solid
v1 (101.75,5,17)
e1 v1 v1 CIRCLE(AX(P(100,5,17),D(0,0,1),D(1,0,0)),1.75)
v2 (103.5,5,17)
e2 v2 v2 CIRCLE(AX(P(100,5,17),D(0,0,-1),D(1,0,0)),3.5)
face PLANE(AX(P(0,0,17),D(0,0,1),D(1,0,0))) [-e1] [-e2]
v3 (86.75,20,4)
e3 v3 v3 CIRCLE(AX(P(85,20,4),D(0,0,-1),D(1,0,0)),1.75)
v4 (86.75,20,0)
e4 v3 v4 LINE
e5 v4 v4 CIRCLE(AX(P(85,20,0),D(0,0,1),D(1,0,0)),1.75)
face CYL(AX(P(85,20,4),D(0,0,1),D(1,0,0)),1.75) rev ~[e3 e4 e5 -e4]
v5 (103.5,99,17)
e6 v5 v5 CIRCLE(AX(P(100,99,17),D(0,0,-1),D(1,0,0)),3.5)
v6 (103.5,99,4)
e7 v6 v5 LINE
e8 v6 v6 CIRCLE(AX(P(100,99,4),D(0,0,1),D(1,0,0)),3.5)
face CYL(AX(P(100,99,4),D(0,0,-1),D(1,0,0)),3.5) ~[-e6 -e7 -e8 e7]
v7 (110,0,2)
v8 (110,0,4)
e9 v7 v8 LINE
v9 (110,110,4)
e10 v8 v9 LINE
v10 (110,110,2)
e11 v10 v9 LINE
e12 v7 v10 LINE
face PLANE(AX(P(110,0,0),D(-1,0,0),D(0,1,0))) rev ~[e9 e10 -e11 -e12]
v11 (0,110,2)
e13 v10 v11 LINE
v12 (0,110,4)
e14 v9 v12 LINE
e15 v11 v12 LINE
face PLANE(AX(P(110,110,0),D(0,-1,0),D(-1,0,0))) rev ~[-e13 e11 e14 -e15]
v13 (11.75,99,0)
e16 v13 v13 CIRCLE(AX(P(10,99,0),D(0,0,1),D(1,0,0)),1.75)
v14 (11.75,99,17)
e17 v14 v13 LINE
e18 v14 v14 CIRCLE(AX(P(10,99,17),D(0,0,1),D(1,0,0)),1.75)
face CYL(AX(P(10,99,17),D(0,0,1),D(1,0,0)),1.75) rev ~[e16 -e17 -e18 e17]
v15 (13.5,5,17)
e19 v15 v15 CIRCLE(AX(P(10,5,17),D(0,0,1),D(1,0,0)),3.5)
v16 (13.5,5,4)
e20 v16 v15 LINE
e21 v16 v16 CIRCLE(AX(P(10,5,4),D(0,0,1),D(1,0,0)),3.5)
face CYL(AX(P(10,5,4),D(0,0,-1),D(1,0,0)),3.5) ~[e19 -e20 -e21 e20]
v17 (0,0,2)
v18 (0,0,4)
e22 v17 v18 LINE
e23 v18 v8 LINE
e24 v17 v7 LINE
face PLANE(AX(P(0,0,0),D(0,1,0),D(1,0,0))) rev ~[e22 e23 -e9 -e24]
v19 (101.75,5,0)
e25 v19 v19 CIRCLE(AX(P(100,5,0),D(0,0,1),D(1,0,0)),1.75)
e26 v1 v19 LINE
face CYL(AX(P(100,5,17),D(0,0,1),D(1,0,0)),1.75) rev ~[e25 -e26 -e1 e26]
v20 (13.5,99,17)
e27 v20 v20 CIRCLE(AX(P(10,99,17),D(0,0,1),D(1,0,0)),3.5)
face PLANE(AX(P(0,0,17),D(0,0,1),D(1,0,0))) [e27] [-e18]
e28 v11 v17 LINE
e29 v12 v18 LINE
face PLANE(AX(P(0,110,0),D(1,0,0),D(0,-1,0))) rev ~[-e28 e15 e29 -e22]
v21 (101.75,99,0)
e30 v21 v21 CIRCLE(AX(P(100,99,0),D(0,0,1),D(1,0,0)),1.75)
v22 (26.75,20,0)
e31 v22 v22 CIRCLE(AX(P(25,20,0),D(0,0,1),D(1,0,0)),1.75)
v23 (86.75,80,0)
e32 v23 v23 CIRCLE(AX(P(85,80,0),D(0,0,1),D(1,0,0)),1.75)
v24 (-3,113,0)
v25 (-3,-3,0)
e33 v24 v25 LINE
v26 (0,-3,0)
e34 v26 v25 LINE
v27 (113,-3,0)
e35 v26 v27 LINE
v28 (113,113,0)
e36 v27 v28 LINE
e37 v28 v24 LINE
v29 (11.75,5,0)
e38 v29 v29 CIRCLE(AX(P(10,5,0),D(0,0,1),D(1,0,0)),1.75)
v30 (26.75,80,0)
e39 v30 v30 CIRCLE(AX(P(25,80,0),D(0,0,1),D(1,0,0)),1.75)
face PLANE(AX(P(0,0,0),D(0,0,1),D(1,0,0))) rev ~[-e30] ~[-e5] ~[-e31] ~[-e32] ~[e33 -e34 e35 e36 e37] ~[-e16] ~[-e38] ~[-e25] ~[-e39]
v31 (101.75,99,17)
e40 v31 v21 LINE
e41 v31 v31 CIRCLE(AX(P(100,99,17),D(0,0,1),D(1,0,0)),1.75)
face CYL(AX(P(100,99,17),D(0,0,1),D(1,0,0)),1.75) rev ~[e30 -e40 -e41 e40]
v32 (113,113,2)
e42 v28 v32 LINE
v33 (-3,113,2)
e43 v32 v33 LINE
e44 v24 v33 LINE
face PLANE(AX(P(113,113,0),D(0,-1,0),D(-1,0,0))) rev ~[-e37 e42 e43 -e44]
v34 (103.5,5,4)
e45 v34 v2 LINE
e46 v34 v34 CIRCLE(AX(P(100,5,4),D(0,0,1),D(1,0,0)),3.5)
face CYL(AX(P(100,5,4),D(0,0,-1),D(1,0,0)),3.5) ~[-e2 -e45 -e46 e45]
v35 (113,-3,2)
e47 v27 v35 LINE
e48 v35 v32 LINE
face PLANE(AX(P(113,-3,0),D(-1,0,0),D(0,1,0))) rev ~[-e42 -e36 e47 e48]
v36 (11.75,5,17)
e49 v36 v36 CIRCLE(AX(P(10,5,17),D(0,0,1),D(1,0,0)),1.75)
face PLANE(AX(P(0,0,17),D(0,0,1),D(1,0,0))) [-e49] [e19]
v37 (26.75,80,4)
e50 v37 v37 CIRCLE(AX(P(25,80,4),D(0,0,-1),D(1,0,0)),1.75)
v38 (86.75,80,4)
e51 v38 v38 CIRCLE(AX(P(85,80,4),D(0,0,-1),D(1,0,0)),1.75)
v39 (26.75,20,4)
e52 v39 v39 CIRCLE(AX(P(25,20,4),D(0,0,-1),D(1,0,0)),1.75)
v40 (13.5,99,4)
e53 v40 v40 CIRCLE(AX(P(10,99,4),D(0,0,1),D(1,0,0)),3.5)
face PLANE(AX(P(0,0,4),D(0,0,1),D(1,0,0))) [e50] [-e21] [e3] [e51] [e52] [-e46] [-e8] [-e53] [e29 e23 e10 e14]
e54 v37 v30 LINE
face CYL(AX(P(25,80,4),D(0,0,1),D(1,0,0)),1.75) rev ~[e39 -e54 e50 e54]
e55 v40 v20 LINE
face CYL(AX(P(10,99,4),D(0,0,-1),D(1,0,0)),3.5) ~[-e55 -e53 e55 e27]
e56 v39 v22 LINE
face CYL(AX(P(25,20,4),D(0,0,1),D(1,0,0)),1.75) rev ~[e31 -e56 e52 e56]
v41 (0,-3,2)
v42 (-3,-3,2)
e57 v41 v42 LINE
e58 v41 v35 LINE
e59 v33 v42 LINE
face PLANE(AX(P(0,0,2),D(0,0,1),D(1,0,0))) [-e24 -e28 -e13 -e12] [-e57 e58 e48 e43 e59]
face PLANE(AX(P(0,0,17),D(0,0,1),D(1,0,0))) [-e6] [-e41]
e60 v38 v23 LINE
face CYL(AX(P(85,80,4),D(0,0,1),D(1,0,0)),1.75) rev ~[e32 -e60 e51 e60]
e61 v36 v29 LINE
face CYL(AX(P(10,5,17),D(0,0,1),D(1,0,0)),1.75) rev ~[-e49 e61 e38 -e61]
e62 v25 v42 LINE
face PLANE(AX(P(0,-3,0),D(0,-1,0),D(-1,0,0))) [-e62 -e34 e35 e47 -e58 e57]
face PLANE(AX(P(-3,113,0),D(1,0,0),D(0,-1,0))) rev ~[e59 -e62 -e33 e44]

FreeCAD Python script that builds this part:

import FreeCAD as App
import Part
import Sketcher

doc = App.newDocument("Part")
params = doc.addObject("Spreadsheet::Sheet", "Params")
for row, (alias, value) in enumerate([
    ("sketch1_width", "110 mm"),
    ("pad1_length", "4 mm"),
    ("sketch2_width", "3 mm"),
    ("sketch2_width2", "116 mm"),
    ("sketch2_width3", "110 mm"),
    ("pad2_length", "2 mm"),
    ("sketch3_diameter", "7 mm"),
    ("pad3_length", "13 mm"),
    ("sketch4_diameter", "3.5 mm"),
    ("sketch5_diameter", "3.5 mm"),
    ("pocket2_length", "15 mm"),
], start=1):
    params.set(f"A{row}", alias)
    params.set(f"B{row}", "=" + value)
    params.setAlias(f"B{row}", alias)

body = doc.addObject("PartDesign::Body", "Body")

# Sketch on XY plane
sketch1 = body.newObject("Sketcher::SketchObject", "Sketch")
sketch1.AttachmentSupport = (doc.getObject("XY_Plane"), [""])
sketch1.MapMode = "FlatFace"
sketch1.addGeometry(Part.LineSegment(App.Vector(0, 110, 0), App.Vector(0, 0, 0)), False)
sketch1.addGeometry(Part.LineSegment(App.Vector(0, 0, 0), App.Vector(110, 0, 0)), False)
sketch1.addGeometry(Part.LineSegment(App.Vector(110, 0, 0), App.Vector(110, 110, 0)), False)
sketch1.addGeometry(Part.LineSegment(App.Vector(110, 110, 0), App.Vector(0, 110, 0)), False)
sketch1.addConstraint(Sketcher.Constraint("Coincident", 0, 2, 1, 1))
sketch1.addConstraint(Sketcher.Constraint("Coincident", 1, 2, 2, 1))
sketch1.addConstraint(Sketcher.Constraint("Coincident", 2, 2, 3, 1))
sketch1.addConstraint(Sketcher.Constraint("Coincident", 3, 2, 0, 1))
sketch1.addConstraint(Sketcher.Constraint("Vertical", 0))
sketch1.addConstraint(Sketcher.Constraint("Horizontal", 1))
sketch1.addConstraint(Sketcher.Constraint("Vertical", 2))
sketch1.addConstraint(Sketcher.Constraint("Horizontal", 3))
sketch1.addConstraint(Sketcher.Constraint("Coincident", 0, 2, -1, 1))
sketch1.addConstraint(Sketcher.Constraint("Equal", 3, 0))
sketch1.addConstraint(Sketcher.Constraint("DistanceX", 1, 1, 1, 2, 110.0))
sketch1.setExpression("Constraints[10]", "Params.sketch1_width")
pad1 = body.newObject("PartDesign::Pad", "Pad")
pad1.Profile = sketch1
pad1.setExpression("Length", "Params.pad1_length")

# Sketch on XY plane
sketch2 = body.newObject("Sketcher::SketchObject", "Sketch001")
sketch2.AttachmentSupport = (doc.getObject("XY_Plane"), [""])
sketch2.MapMode = "FlatFace"
sketch2.addGeometry(Part.LineSegment(App.Vector(-3, -3, 0), App.Vector(0, -3, 0)), False)
sketch2.addGeometry(Part.LineSegment(App.Vector(0, -3, 0), App.Vector(113, -3, 0)), False)
sketch2.addGeometry(Part.LineSegment(App.Vector(113, -3, 0), App.Vector(113, 113, 0)), False)
sketch2.addGeometry(Part.LineSegment(App.Vector(113, 113, 0), App.Vector(-3, 113, 0)), False)
sketch2.addGeometry(Part.LineSegment(App.Vector(-3, 113, 0), App.Vector(-3, -3, 0)), False)
sketch2.addGeometry(Part.LineSegment(App.Vector(110, 0, 0), App.Vector(0, 0, 0)), False)
sketch2.addGeometry(Part.LineSegment(App.Vector(0, 0, 0), App.Vector(0, 110, 0)), False)
sketch2.addGeometry(Part.LineSegment(App.Vector(0, 110, 0), App.Vector(110, 110, 0)), False)
sketch2.addGeometry(Part.LineSegment(App.Vector(110, 110, 0), App.Vector(110, 0, 0)), False)
sketch2.addConstraint(Sketcher.Constraint("Coincident", 0, 2, 1, 1))
sketch2.addConstraint(Sketcher.Constraint("Coincident", 1, 2, 2, 1))
sketch2.addConstraint(Sketcher.Constraint("Coincident", 2, 2, 3, 1))
sketch2.addConstraint(Sketcher.Constraint("Coincident", 3, 2, 4, 1))
sketch2.addConstraint(Sketcher.Constraint("Coincident", 4, 2, 0, 1))
sketch2.addConstraint(Sketcher.Constraint("Coincident", 5, 2, 6, 1))
sketch2.addConstraint(Sketcher.Constraint("Coincident", 6, 2, 7, 1))
sketch2.addConstraint(Sketcher.Constraint("Coincident", 7, 2, 8, 1))
sketch2.addConstraint(Sketcher.Constraint("Coincident", 8, 2, 5, 1))
sketch2.addConstraint(Sketcher.Constraint("Horizontal", 0))
sketch2.addConstraint(Sketcher.Constraint("Horizontal", 1))
sketch2.addConstraint(Sketcher.Constraint("Vertical", 2))
sketch2.addConstraint(Sketcher.Constraint("Horizontal", 3))
sketch2.addConstraint(Sketcher.Constraint("Vertical", 4))
sketch2.addConstraint(Sketcher.Constraint("Horizontal", 5))
sketch2.addConstraint(Sketcher.Constraint("Vertical", 6))
sketch2.addConstraint(Sketcher.Constraint("Horizontal", 7))
sketch2.addConstraint(Sketcher.Constraint("Vertical", 8))
sketch2.addConstraint(Sketcher.Constraint("Coincident", 5, 2, -1, 1))
sketch2.addConstraint(Sketcher.Constraint("PointOnObject", 0, 2, -2))
sketch2.addConstraint(Sketcher.Constraint("Equal", 3, 2))
sketch2.addConstraint(Sketcher.Constraint("Equal", 7, 6))
sketch2.addConstraint(Sketcher.Constraint("DistanceX", 0, 1, 0, 2, 3.0))
sketch2.addConstraint(Sketcher.Constraint("DistanceX", 3, 2, 3, 1, 116.0))
sketch2.addConstraint(Sketcher.Constraint("DistanceX", 5, 2, 5, 1, 110.0))
sketch2.addConstraint(Sketcher.Constraint("DistanceY", 0, 2, -1, 1, 3.0))
sketch2.setExpression("Constraints[22]", "Params.sketch2_width")
sketch2.setExpression("Constraints[23]", "Params.sketch2_width2")
sketch2.setExpression("Constraints[24]", "Params.sketch2_width3")
pad2 = body.newObject("PartDesign::Pad", "Pad001")
pad2.Profile = sketch2
pad2.setExpression("Length", "Params.pad2_length")

# Sketch on XY plane
sketch3 = body.newObject("Sketcher::SketchObject", "Sketch002")
sketch3.AttachmentSupport = (doc.getObject("XY_Plane"), [""])
sketch3.MapMode = "FlatFace"
sketch3.AttachmentOffset = App.Placement(App.Vector(0, 0, 4), App.Rotation())
sketch3.addGeometry(Part.Circle(App.Vector(10, 5, 0), App.Vector(0, 0, 1), 3.5), False)
sketch3.addGeometry(Part.Circle(App.Vector(10, 99, 0), App.Vector(0, 0, 1), 3.5), False)
sketch3.addGeometry(Part.Circle(App.Vector(100, 99, 0), App.Vector(0, 0, 1), 3.5), False)
sketch3.addGeometry(Part.Circle(App.Vector(100, 5, 0), App.Vector(0, 0, 1), 3.5), False)
sketch3.addConstraint(Sketcher.Constraint("Equal", 0, 1))
sketch3.addConstraint(Sketcher.Constraint("Equal", 1, 2))
sketch3.addConstraint(Sketcher.Constraint("Equal", 2, 3))
sketch3.addConstraint(Sketcher.Constraint("Horizontal", 1, 3, 2, 3))
sketch3.addConstraint(Sketcher.Constraint("Horizontal", 0, 3, 3, 3))
sketch3.addConstraint(Sketcher.Constraint("Vertical", 0, 3, 1, 3))
sketch3.addConstraint(Sketcher.Constraint("Vertical", 2, 3, 3, 3))
sketch3.addConstraint(Sketcher.Constraint("Diameter", 0, 7.0))
sketch3.addConstraint(Sketcher.Constraint("DistanceY", -1, 1, 0, 3, 5.0))
sketch3.addConstraint(Sketcher.Constraint("DistanceY", 0, 3, 1, 3, 94.0))
sketch3.addConstraint(Sketcher.Constraint("DistanceX", 1, 3, 2, 3, 90.0))
sketch3.addConstraint(Sketcher.Constraint("DistanceX", -1, 1, 0, 3, 10.0))
sketch3.setExpression("Constraints[7]", "Params.sketch3_diameter")
pad3 = body.newObject("PartDesign::Pad", "Pad002")
pad3.Profile = sketch3
pad3.setExpression("Length", "Params.pad3_length")

# Sketch on XY plane
sketch4 = body.newObject("Sketcher::SketchObject", "Sketch003")
sketch4.AttachmentSupport = (doc.getObject("XY_Plane"), [""])
sketch4.MapMode = "FlatFace"
sketch4.AttachmentOffset = App.Placement(App.Vector(0, 0, 17), App.Rotation())
sketch4.addGeometry(Part.Circle(App.Vector(10, 5, 0), App.Vector(0, 0, 1), 1.8), False)
sketch4.addGeometry(Part.Circle(App.Vector(100, 5, 0), App.Vector(0, 0, 1), 1.8), False)
sketch4.addGeometry(Part.Circle(App.Vector(100, 99, 0), App.Vector(0, 0, 1), 1.8), False)
sketch4.addGeometry(Part.Circle(App.Vector(10, 99, 0), App.Vector(0, 0, 1), 1.8), False)
sketch4.addConstraint(Sketcher.Constraint("Equal", 0, 1))
sketch4.addConstraint(Sketcher.Constraint("Equal", 1, 2))
sketch4.addConstraint(Sketcher.Constraint("Equal", 2, 3))
sketch4.addConstraint(Sketcher.Constraint("Horizontal", 0, 3, 1, 3))
sketch4.addConstraint(Sketcher.Constraint("Horizontal", 2, 3, 3, 3))
sketch4.addConstraint(Sketcher.Constraint("Vertical", 1, 3, 2, 3))
sketch4.addConstraint(Sketcher.Constraint("Vertical", 0, 3, 3, 3))
sketch4.addConstraint(Sketcher.Constraint("Diameter", 0, 3.5))
sketch4.addConstraint(Sketcher.Constraint("DistanceX", -1, 1, 0, 3, 10.0))
sketch4.addConstraint(Sketcher.Constraint("DistanceY", -1, 1, 0, 3, 5.0))
sketch4.addConstraint(Sketcher.Constraint("DistanceX", -1, 1, 1, 3, 100.0))
sketch4.addConstraint(Sketcher.Constraint("DistanceY", -1, 1, 2, 3, 99.0))
sketch4.setExpression("Constraints[7]", "Params.sketch4_diameter")
pocket1 = body.newObject("PartDesign::Pocket", "Pocket")
pocket1.Profile = sketch4
pocket1.Type = "ThroughAll"

# Sketch on XY plane
sketch5 = body.newObject("Sketcher::SketchObject", "Sketch004")
sketch5.AttachmentSupport = (doc.getObject("XY_Plane"), [""])
sketch5.MapMode = "FlatFace"
sketch5.AttachmentOffset = App.Placement(App.Vector(0, 0, 4), App.Rotation())
sketch5.addGeometry(Part.Circle(App.Vector(85, 20, 0), App.Vector(0, 0, 1), 1.8), False)
sketch5.addGeometry(Part.Circle(App.Vector(25, 20, 0), App.Vector(0, 0, 1), 1.8), False)
sketch5.addGeometry(Part.Circle(App.Vector(25, 80, 0), App.Vector(0, 0, 1), 1.8), False)
sketch5.addGeometry(Part.Circle(App.Vector(85, 80, 0), App.Vector(0, 0, 1), 1.8), False)
sketch5.addConstraint(Sketcher.Constraint("Equal", 0, 1))
sketch5.addConstraint(Sketcher.Constraint("Equal", 1, 2))
sketch5.addConstraint(Sketcher.Constraint("Equal", 2, 3))
sketch5.addConstraint(Sketcher.Constraint("Horizontal", 0, 3, 1, 3))
sketch5.addConstraint(Sketcher.Constraint("Horizontal", 2, 3, 3, 3))
sketch5.addConstraint(Sketcher.Constraint("Vertical", 1, 3, 2, 3))
sketch5.addConstraint(Sketcher.Constraint("Vertical", 0, 3, 3, 3))
sketch5.addConstraint(Sketcher.Constraint("Diameter", 0, 3.5))
sketch5.addConstraint(Sketcher.Constraint("DistanceY", -1, 1, 0, 3, 20.0))
sketch5.addConstraint(Sketcher.Constraint("DistanceX", 1, 3, 0, 3, 60.0))
sketch5.addConstraint(Sketcher.Constraint("DistanceY", 1, 3, 2, 3, 60.0))
sketch5.addConstraint(Sketcher.Constraint("DistanceX", -1, 1, 0, 3, 85.0))
sketch5.setExpression("Constraints[7]", "Params.sketch5_diameter")
pocket2 = body.newObject("PartDesign::Pocket", "Pocket001")
pocket2.Profile = sketch5
pocket2.setExpression("Length", "Params.pocket2_length")

doc.recompute()
